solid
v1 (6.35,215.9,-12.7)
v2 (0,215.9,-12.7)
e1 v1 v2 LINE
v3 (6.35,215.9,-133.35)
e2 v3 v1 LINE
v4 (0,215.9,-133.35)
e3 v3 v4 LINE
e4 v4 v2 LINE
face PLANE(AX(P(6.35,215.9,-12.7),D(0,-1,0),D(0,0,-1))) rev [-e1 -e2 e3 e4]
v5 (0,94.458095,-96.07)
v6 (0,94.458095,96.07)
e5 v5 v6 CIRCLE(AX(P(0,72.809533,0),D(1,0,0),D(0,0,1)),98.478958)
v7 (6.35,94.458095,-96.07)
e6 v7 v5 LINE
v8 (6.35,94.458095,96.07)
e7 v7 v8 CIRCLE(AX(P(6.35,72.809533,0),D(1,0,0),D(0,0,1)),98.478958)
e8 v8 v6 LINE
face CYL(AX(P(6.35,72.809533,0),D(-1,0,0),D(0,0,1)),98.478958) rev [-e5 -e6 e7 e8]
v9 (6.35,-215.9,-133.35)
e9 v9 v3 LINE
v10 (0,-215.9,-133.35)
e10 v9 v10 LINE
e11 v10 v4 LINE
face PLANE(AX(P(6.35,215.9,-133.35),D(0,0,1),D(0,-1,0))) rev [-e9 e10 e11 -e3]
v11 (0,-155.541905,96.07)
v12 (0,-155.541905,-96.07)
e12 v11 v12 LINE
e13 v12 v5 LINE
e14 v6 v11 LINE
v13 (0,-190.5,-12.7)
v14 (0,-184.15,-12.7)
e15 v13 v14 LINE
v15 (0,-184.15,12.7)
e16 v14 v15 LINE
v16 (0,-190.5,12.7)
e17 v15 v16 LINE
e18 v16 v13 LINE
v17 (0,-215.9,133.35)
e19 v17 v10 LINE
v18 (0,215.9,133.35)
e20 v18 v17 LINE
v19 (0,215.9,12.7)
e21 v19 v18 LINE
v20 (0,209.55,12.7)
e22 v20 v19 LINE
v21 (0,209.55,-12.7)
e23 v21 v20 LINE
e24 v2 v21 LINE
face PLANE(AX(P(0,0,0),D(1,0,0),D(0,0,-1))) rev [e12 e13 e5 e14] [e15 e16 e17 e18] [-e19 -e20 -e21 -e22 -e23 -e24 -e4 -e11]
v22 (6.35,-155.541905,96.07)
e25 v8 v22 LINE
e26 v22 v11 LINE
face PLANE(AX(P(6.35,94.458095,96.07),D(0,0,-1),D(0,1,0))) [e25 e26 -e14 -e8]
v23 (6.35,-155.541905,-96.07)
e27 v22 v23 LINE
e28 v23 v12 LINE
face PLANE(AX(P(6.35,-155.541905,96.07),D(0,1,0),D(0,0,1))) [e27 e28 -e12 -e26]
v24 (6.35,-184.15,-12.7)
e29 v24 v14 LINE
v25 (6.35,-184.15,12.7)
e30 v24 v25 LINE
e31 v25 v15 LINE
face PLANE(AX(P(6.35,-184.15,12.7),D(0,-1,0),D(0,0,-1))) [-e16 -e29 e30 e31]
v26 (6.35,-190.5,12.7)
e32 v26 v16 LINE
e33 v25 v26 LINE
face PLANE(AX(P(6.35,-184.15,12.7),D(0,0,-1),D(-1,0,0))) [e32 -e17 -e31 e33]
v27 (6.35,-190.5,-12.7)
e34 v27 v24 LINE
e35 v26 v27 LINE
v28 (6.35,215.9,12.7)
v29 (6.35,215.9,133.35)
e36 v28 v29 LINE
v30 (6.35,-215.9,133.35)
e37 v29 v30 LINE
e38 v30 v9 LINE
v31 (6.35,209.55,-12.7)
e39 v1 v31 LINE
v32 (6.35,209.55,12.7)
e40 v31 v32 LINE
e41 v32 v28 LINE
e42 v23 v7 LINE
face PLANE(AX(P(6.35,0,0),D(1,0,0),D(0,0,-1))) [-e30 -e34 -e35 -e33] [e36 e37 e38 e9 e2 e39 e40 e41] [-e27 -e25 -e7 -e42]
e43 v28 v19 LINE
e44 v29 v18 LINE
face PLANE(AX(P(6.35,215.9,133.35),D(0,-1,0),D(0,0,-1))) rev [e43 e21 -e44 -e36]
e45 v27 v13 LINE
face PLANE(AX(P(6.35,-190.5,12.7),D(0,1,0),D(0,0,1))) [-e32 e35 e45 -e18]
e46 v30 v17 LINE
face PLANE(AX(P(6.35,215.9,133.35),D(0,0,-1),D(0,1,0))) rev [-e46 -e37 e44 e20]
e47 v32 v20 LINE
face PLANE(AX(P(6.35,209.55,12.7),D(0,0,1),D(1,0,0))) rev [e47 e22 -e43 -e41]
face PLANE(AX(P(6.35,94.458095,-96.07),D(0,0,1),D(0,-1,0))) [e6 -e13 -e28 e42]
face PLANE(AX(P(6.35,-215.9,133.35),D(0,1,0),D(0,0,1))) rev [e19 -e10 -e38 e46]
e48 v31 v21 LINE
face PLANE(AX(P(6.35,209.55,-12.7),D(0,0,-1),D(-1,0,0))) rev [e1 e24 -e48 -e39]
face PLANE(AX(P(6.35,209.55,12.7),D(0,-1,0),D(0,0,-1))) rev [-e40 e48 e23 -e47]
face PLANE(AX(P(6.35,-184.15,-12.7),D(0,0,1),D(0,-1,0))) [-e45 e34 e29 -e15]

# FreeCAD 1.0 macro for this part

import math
import FreeCAD as App
import Part
import Sketcher

V = App.Vector
Q = App.Units.Quantity


def add_polygon(sketch, points):
    """Adds a closed chain of lines whose ends are joined by coincident constraints."""
    first, n = sketch.GeometryCount, len(points)
    for a, b in zip(points, points[1:] + points[:1]):
        sketch.addGeometry(Part.LineSegment(App.Vector(*a, 0), App.Vector(*b, 0)), False)
    for i in range(n):
        sketch.addConstraint(Sketcher.Constraint("Coincident", first + i, 2, first + (i + 1) % n, 1))

doc = App.newDocument("Part")
body = doc.addObject("PartDesign::Body", "Body")

# Sketch on YZ plane
sketch1 = body.newObject("Sketcher::SketchObject", "Sketch")
sketch1.AttachmentSupport = (doc.getObject("YZ_Plane"), [""])
sketch1.MapMode = "FlatFace"
add_polygon(sketch1, [(216, -133), (216, -13), (210, -13), (210, 13), (216, 13), (216, 133), (-216, 133), (-216, -133)])  # lines 0-7
add_polygon(sketch1, [(-190, 13), (-184, 13), (-184, -13), (-190, -13)])  # lines 8-11
sketch1.addGeometry(Part.ArcOfCircle(Part.Circle(V(73, 0, 0), V(0, 0, 1), 98), math.radians(-77), math.radians(77)), False)  # 12
sketch1.addGeometry(Part.LineSegment(V(94, -96, 0), V(-156, -96, 0)), False)  # 13
sketch1.addGeometry(Part.LineSegment(V(-156, -96, 0), V(-156, 96, 0)), False)  # 14
sketch1.addGeometry(Part.LineSegment(V(-156, 96, 0), V(94, 96, 0)), False)  # 15
sketch1.addConstraint([
    Sketcher.Constraint("Coincident", 12, 1, 13, 1),
    Sketcher.Constraint("Coincident", 13, 2, 14, 1),
    Sketcher.Constraint("Coincident", 14, 2, 15, 1),
    Sketcher.Constraint("Coincident", 15, 2, 12, 2),
    Sketcher.Constraint("Vertical", 0),
    Sketcher.Constraint("Horizontal", 1),
    Sketcher.Constraint("Vertical", 2),
    Sketcher.Constraint("Horizontal", 3),
    Sketcher.Constraint("Vertical", 4),
    Sketcher.Constraint("Horizontal", 5),
    Sketcher.Constraint("Vertical", 6),
    Sketcher.Constraint("Horizontal", 7),
    Sketcher.Constraint("Horizontal", 8),
    Sketcher.Constraint("Vertical", 9),
    Sketcher.Constraint("Horizontal", 10),
    Sketcher.Constraint("Vertical", 11),
    Sketcher.Constraint("Horizontal", 13),
    Sketcher.Constraint("Vertical", 14),
    Sketcher.Constraint("Horizontal", 15),
    Sketcher.Constraint("Symmetric", 4, 2, 6, 2, -1, 1),
    Sketcher.Constraint("Symmetric", 0, 2, 3, 2, -1),
    Sketcher.Constraint("Symmetric", 12, 1, 15, 2, -1),
    Sketcher.Constraint("Horizontal", 3, 2, 8, 2),
    Sketcher.Constraint("Horizontal", 1, 2, 9, 2),
    Sketcher.Constraint("Equal", 3, 8),
    Sketcher.Constraint("DistanceX", 5, 2, 5, 1, Q("17 in")),
    Sketcher.Constraint("DistanceY", 2, 1, 2, 2, Q("1 in")),
    Sketcher.Constraint("DistanceY", 6, 2, 6, 1, Q("10.5 in")),
    Sketcher.Constraint("DistanceX", 6, 2, 10, 2, Q("1 in")),
    Sketcher.Constraint("DistanceX", 1, 2, 1, 1, Q("0.25 in")),
    Sketcher.Constraint("DistanceX", 13, 2, 13, 1, Q("250 mm")),
    Sketcher.Constraint("DistanceY", 14, 1, 14, 2, Q("192.14 mm")),
    Sketcher.Constraint("Radius", 12, Q("98.478958 mm")),
    Sketcher.Constraint("DistanceX", -1, 1, 12, 3, Q("72.809533 mm")),
])
pad1 = body.newObject("PartDesign::Pad", "Pad")
pad1.Profile = sketch1
pad1.Length = Q("0.25 in")

doc.recompute()
